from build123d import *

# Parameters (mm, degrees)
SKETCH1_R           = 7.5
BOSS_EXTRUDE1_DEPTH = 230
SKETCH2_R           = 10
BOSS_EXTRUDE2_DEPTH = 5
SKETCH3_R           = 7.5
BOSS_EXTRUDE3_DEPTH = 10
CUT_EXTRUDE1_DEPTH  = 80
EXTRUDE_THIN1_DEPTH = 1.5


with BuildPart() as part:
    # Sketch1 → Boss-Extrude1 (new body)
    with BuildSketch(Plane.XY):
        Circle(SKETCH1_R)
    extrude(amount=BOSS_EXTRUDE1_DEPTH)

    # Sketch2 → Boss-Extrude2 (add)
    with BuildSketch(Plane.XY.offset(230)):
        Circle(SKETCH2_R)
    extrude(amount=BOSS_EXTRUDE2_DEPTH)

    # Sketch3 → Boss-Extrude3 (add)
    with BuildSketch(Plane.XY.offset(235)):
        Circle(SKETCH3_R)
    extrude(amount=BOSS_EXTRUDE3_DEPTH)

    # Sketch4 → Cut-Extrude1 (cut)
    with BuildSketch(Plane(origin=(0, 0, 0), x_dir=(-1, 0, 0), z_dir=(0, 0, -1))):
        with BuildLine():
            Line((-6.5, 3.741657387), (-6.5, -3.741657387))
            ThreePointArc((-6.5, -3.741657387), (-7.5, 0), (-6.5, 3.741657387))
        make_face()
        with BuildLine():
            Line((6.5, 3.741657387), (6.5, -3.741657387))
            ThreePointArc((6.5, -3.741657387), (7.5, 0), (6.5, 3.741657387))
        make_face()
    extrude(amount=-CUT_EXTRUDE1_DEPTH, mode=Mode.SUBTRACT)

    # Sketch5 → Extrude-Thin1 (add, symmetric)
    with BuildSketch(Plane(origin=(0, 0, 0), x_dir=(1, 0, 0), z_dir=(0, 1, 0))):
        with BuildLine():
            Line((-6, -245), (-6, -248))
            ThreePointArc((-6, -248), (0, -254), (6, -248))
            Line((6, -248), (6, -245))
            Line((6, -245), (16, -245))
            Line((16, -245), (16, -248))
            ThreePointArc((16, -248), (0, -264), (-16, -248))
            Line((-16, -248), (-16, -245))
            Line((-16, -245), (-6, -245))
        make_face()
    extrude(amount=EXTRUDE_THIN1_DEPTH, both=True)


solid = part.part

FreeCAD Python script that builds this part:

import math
import FreeCAD as App
import Part
import Sketcher
from FreeCAD import Vector
Q = App.Units.Quantity

doc = App.newDocument("Part")
body = doc.addObject("PartDesign::Body", "Body")

# Sketch on XY plane
sketch1 = body.newObject("Sketcher::SketchObject", "Sketch")
sketch1.AttachmentSupport = (doc.getObject("XY_Plane"), [""])
sketch1.MapMode = "FlatFace"
sketch1.addGeometry(Part.Circle(Vector(0, 0, 0), Vector(0, 0, 1), 8), False)
sketch1.addConstraint(Sketcher.Constraint("Coincident", 0, 3, -1, 1))
sketch1.addConstraint(Sketcher.Constraint("Diameter", 0, Q("15 mm")))
pad1 = body.newObject("PartDesign::Pad", "Pad")
pad1.Profile = sketch1
pad1.Length = 230

# Sketch on XY plane
sketch2 = body.newObject("Sketcher::SketchObject", "Sketch001")
sketch2.AttachmentSupport = (doc.getObject("XY_Plane"), [""])
sketch2.MapMode = "FlatFace"
sketch2.AttachmentOffset = App.Placement(Vector(0, 0, 230), App.Rotation())
sketch2.addGeometry(Part.Circle(Vector(0, 0, 0), Vector(0, 0, 1), 10), False)
sketch2.addConstraint(Sketcher.Constraint("Coincident", 0, 3, -1, 1))
sketch2.addConstraint(Sketcher.Constraint("Diameter", 0, Q("20 mm")))
pad2 = body.newObject("PartDesign::Pad", "Pad001")
pad2.Profile = sketch2
pad2.Length = 5

# Sketch on XY plane
sketch3 = body.newObject("Sketcher::SketchObject", "Sketch002")
sketch3.AttachmentSupport = (doc.getObject("XY_Plane"), [""])
sketch3.MapMode = "FlatFace"
sketch3.AttachmentOffset = App.Placement(Vector(0, 0, 235), App.Rotation())
sketch3.addGeometry(Part.Circle(Vector(0, 0, 0), Vector(0, 0, 1), 8), False)
sketch3.addConstraint(Sketcher.Constraint("Coincident", 0, 3, -1, 1))
sketch3.addConstraint(Sketcher.Constraint("Diameter", 0, Q("15 mm")))
pad3 = body.newObject("PartDesign::Pad", "Pad002")
pad3.Profile = sketch3
pad3.Length = 10

# Sketch on XY plane
sketch4 = body.newObject("Sketcher::SketchObject", "Sketch003")
sketch4.AttachmentSupport = (doc.getObject("XY_Plane"), [""])
sketch4.MapMode = "FlatFace"
sketch4.addGeometry(Part.LineSegment(Vector(6, -4, 0), Vector(6, 4, 0)), False)
sketch4.addGeometry(Part.ArcOfCircle(Part.Circle(Vector(0, 0, 0), Vector(0, 0, 1), 8), math.radians(-30), math.radians(30)), False)
sketch4.addGeometry(Part.LineSegment(Vector(-6, 4, 0), Vector(-6, -4, 0)), False)
sketch4.addGeometry(Part.ArcOfCircle(Part.Circle(Vector(0, 0, 0), Vector(0, 0, 1), 8), math.radians(150), math.radians(210)), False)
sketch4.addConstraint(Sketcher.Constraint("Coincident", 0, 1, 1, 1))
sketch4.addConstraint(Sketcher.Constraint("Coincident", 1, 2, 0, 2))
sketch4.addConstraint(Sketcher.Constraint("Coincident", 2, 1, 3, 1))
sketch4.addConstraint(Sketcher.Constraint("Coincident", 3, 2, 2, 2))
sketch4.addConstraint(Sketcher.Constraint("Vertical", 0))
sketch4.addConstraint(Sketcher.Constraint("Vertical", 2))
sketch4.addConstraint(Sketcher.Constraint("Coincident", 1, 3, -1, 1))
sketch4.addConstraint(Sketcher.Constraint("Coincident", 3, 3, -1, 1))
sketch4.addConstraint(Sketcher.Constraint("Equal", 1, 3))
sketch4.addConstraint(Sketcher.Constraint("Horizontal", 1, 2, 2, 1))
sketch4.addConstraint(Sketcher.Constraint("Radius", 1, Q("7.5 mm")))
sketch4.addConstraint(Sketcher.Constraint("DistanceX", 2, 1, 1, 2, Q("13 mm")))
pocket1 = body.newObject("PartDesign::Pocket", "Pocket")
pocket1.Profile = sketch4
pocket1.Length = 80
pocket1.Reversed = True

# Sketch on XZ plane
sketch5 = body.newObject("Sketcher::SketchObject", "Sketch004")
sketch5.AttachmentSupport = (doc.getObject("XZ_Plane"), [""])
sketch5.MapMode = "FlatFace"
sketch5.addGeometry(Part.LineSegment(Vector(-6, 248, 0), Vector(-6, 245, 0)), False)
sketch5.addGeometry(Part.LineSegment(Vector(-6, 245, 0), Vector(-16, 245, 0)), False)
sketch5.addGeometry(Part.LineSegment(Vector(-16, 245, 0), Vector(-16, 248, 0)), False)
sketch5.addGeometry(Part.ArcOfCircle(Part.Circle(Vector(0, 248, 0), Vector(0, 0, 1), 16), math.radians(0), math.radians(180)), False)
sketch5.addGeometry(Part.LineSegment(Vector(16, 248, 0), Vector(16, 245, 0)), False)
sketch5.addGeometry(Part.LineSegment(Vector(16, 245, 0), Vector(6, 245, 0)), False)
sketch5.addGeometry(Part.LineSegment(Vector(6, 245, 0), Vector(6, 248, 0)), False)
sketch5.addGeometry(Part.ArcOfCircle(Part.Circle(Vector(0, 248, 0), Vector(0, 0, 1), 6), math.radians(0), math.radians(180)), False)
sketch5.addConstraint(Sketcher.Constraint("Coincident", 0, 2, 1, 1))
sketch5.addConstraint(Sketcher.Constraint("Coincident", 1, 2, 2, 1))
sketch5.addConstraint(Sketcher.Constraint("Tangent", 2, 2, 3, 2))
sketch5.addConstraint(Sketcher.Constraint("Tangent", 3, 1, 4, 1))
sketch5.addConstraint(Sketcher.Constraint("Coincident", 4, 2, 5, 1))
sketch5.addConstraint(Sketcher.Constraint("Coincident", 5, 2, 6, 1))
sketch5.addConstraint(Sketcher.Constraint("Tangent", 6, 2, 7, 1))
sketch5.addConstraint(Sketcher.Constraint("Tangent", 7, 2, 0, 1))
sketch5.addConstraint(Sketcher.Constraint("Vertical", 0))
sketch5.addConstraint(Sketcher.Constraint("Horizontal", 1))
sketch5.addConstraint(Sketcher.Constraint("Vertical", 2))
sketch5.addConstraint(Sketcher.Constraint("Vertical", 4))
sketch5.addConstraint(Sketcher.Constraint("Horizontal", 5))
sketch5.addConstraint(Sketcher.Constraint("Vertical", 6))
sketch5.addConstraint(Sketcher.Constraint("Coincident", 7, 3, 3, 3))
sketch5.addConstraint(Sketcher.Constraint("Symmetric", 1, 2, 4, 2, -2))
sketch5.addConstraint(Sketcher.Constraint("Radius", 3, Q("16 mm")))
sketch5.addConstraint(Sketcher.Constraint("Radius", 7, Q("6 mm")))
sketch5.addConstraint(Sketcher.Constraint("DistanceY", 0, 2, 0, 1, Q("3 mm")))
sketch5.addConstraint(Sketcher.Constraint("DistanceY", -1, 1, 3, 3, Q("248 mm")))
pad4 = body.newObject("PartDesign::Pad", "Pad003")
pad4.Profile = sketch5
pad4.Length = 3
pad4.Midplane = True

doc.recompute()
